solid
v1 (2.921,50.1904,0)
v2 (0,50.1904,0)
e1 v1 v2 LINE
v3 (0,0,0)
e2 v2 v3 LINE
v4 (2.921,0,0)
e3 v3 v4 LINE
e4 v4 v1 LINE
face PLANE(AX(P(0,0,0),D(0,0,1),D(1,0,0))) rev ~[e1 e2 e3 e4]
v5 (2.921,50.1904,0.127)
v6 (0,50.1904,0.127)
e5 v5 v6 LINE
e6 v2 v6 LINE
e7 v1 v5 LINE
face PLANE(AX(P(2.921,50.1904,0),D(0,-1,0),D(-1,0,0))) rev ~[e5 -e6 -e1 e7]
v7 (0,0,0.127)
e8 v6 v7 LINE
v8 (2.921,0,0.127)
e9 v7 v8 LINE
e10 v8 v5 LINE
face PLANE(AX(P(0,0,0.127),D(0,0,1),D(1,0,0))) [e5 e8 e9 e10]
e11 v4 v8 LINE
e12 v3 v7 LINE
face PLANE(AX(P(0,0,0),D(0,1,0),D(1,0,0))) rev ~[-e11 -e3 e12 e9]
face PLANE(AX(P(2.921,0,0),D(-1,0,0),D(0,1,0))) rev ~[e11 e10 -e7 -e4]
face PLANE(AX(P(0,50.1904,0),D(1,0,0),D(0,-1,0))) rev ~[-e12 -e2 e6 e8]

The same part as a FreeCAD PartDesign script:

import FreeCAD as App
import Part
import Sketcher
from FreeCAD import Vector
Q = App.Units.Quantity


def add_polygon(sketch, points):
    """Adds a closed chain of lines whose ends are joined by coincident constraints."""
    first, n = sketch.GeometryCount, len(points)
    for a, b in zip(points, points[1:] + points[:1]):
        sketch.addGeometry(Part.LineSegment(App.Vector(*a, 0), App.Vector(*b, 0)), False)
    for i in range(n):
        sketch.addConstraint(Sketcher.Constraint("Coincident", first + i, 2, first + (i + 1) % n, 1))

doc = App.newDocument("Part")
params = doc.addObject("Spreadsheet::Sheet", "Params")
for row, (alias, value) in enumerate([
    ("sketch1_width", "0.115 in"),
    ("sketch1_height", "1.976 in"),
    ("pad1_length", "0.005 in"),
], start=1):
    params.set(f"A{row}", alias)
    params.set(f"B{row}", "=" + value)
    params.setAlias(f"B{row}", alias)

body = doc.addObject("PartDesign::Body", "Body")

# Sketch on XY plane
sketch1 = body.newObject("Sketcher::SketchObject", "Sketch")
sketch1.AttachmentSupport = (doc.getObject("XY_Plane"), [""])
sketch1.MapMode = "FlatFace"
add_polygon(sketch1, [(0, 50.1904), (0, 0), (2.921, 0), (2.921, 50.1904)])  # lines 0-3
sketch1.addConstraint(Sketcher.Constraint("Vertical", 0))
sketch1.addConstraint(Sketcher.Constraint("Horizontal", 1))
sketch1.addConstraint(Sketcher.Constraint("Vertical", 2))
sketch1.addConstraint(Sketcher.Constraint("Horizontal", 3))
sketch1.addConstraint(Sketcher.Constraint("Coincident", 0, 2, -1, 1))
sketch1.addConstraint(Sketcher.Constraint("DistanceX", 1, 1, 1, 2, Q("0.115 in")))
sketch1.addConstraint(Sketcher.Constraint("DistanceY", 0, 2, 0, 1, Q("1.976 in")))
sketch1.setExpression("Constraints[9]", "Params.sketch1_width")
sketch1.setExpression("Constraints[10]", "Params.sketch1_height")
pad1 = body.newObject("PartDesign::Pad", "Pad")
pad1.Profile = sketch1
pad1.setExpression("Length", "Params.pad1_length")

doc.recompute()
